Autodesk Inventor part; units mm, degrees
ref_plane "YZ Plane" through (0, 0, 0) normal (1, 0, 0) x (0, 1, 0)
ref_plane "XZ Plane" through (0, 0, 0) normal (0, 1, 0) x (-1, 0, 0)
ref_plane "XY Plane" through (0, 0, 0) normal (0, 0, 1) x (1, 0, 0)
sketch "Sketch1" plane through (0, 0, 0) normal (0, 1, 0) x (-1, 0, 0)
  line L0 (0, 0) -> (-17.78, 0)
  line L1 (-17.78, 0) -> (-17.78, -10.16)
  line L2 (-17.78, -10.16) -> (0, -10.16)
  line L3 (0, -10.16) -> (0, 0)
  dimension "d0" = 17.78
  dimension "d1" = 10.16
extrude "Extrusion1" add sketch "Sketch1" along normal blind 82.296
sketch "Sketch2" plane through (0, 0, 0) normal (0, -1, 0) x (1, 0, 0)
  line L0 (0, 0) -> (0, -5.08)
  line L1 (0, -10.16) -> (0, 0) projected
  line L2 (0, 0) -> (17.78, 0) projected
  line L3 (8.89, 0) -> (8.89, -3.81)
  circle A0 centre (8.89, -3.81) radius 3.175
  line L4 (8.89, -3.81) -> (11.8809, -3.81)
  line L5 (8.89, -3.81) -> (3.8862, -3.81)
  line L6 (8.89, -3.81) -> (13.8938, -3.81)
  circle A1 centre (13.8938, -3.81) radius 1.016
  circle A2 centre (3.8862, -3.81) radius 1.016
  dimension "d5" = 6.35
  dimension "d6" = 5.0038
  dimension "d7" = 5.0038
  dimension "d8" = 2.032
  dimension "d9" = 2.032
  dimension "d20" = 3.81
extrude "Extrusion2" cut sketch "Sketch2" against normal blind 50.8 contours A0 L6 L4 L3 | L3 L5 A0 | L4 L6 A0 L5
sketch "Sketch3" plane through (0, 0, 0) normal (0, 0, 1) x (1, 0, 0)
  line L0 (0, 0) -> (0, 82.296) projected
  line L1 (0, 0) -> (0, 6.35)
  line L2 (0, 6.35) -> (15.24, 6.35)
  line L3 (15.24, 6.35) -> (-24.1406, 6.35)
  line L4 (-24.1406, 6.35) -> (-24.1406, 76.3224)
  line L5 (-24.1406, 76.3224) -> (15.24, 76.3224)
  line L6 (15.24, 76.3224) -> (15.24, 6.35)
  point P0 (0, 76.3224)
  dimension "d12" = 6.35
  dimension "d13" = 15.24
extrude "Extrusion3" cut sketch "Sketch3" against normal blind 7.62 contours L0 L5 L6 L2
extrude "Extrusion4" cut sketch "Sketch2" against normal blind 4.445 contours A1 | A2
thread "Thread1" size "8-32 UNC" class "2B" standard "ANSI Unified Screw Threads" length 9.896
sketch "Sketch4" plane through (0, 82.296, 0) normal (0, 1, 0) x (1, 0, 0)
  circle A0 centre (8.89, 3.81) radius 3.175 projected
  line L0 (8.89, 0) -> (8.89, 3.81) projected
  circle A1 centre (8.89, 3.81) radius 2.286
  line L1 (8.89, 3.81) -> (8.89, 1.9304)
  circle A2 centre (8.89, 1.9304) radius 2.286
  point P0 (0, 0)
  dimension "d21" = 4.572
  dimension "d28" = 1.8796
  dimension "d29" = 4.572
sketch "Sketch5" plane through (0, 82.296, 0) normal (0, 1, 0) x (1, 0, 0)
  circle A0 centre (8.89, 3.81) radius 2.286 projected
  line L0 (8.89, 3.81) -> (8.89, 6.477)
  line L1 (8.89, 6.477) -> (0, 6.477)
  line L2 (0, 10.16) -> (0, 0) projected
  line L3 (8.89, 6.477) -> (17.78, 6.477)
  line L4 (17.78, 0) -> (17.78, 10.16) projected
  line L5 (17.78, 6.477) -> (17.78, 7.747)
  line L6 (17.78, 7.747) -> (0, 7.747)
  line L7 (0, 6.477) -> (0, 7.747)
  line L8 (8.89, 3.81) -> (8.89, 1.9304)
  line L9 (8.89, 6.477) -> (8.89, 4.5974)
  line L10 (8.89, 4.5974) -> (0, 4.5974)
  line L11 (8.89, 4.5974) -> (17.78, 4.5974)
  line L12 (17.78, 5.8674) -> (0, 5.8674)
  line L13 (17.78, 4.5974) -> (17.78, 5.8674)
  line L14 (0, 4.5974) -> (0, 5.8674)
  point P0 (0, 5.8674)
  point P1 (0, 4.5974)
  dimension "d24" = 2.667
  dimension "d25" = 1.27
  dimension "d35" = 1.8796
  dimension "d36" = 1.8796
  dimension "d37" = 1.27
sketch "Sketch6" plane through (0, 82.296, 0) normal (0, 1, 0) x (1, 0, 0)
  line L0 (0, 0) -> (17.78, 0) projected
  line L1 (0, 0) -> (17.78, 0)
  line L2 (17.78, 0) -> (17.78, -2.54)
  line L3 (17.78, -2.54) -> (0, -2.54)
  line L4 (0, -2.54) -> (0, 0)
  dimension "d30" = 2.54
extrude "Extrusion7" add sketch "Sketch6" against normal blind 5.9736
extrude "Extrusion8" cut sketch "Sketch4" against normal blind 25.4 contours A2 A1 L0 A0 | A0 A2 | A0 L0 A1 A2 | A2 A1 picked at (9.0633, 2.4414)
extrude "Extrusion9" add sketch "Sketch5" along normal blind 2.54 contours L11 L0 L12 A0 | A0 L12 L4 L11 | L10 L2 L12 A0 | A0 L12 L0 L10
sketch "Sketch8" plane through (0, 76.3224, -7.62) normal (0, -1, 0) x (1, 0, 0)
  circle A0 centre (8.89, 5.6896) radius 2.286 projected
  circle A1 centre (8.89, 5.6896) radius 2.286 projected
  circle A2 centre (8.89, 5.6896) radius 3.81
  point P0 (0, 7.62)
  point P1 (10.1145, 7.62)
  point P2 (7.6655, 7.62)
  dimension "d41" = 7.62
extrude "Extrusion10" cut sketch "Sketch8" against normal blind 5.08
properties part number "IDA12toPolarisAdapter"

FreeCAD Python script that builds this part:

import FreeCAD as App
import Part
import Sketcher

V = App.Vector
Q = App.Units.Quantity

doc = App.newDocument("Part")
body = doc.addObject("PartDesign::Body", "Body")

sketch1 = body.newObject("Sketcher::SketchObject", "Sketch")
sketch1.AttachmentSupport = (doc.getObject("XZ_Plane"), [""])
sketch1.MapMode = "FlatFace"
sketch1.addGeometry([
    Part.LineSegment(V(0, -10.16, 0), V(0, 0, 0)),
    Part.LineSegment(V(0, 0, 0), V(17.78, 0, 0)),
    Part.LineSegment(V(17.78, 0, 0), V(17.78, -10.16, 0)),
    Part.LineSegment(V(17.78, -10.16, 0), V(0, -10.16, 0)),
], False)
sketch1.addConstraint([
    Sketcher.Constraint("Coincident", 0, 2, 1, 1),
    Sketcher.Constraint("Coincident", 1, 2, 2, 1),
    Sketcher.Constraint("Coincident", 2, 2, 3, 1),
    Sketcher.Constraint("Coincident", 3, 2, 0, 1),
    Sketcher.Constraint("Vertical", 0),
    Sketcher.Constraint("Horizontal", 1),
    Sketcher.Constraint("Vertical", 2),
    Sketcher.Constraint("Horizontal", 3),
    Sketcher.Constraint("Coincident", 0, 2, -1, 1),
    Sketcher.Constraint("DistanceX", 1, 1, 1, 2, Q("0.7 in")),
    Sketcher.Constraint("DistanceY", 0, 1, 0, 2, Q("0.4 in")),
])
pad1 = body.newObject("PartDesign::Pad", "Pad")
pad1.Profile = sketch1
pad1.Length = Q("3.24 in")
pad1.Reversed = True

sketch2 = body.newObject("Sketcher::SketchObject", "Sketch001")
sketch2.AttachmentSupport = (doc.getObject("XZ_Plane"), [""])
sketch2.MapMode = "FlatFace"
sketch2.addGeometry(Part.Circle(V(8.89, -3.81, 0), V(0, 0, 1), 3.175), False)
sketch2.addConstraint([
    Sketcher.Constraint("Diameter", 0, Q("0.25 in")),
    Sketcher.Constraint("DistanceY", 0, 3, -1, 1, Q("0.15 in")),
    Sketcher.Constraint("DistanceX", -1, 1, 0, 3, Q("0.35 in")),
])
pocket1 = body.newObject("PartDesign::Pocket", "Pocket")
pocket1.Profile = sketch2
pocket1.Length = Q("2 in")

sketch3 = body.newObject("Sketcher::SketchObject", "Sketch002")
sketch3.AttachmentSupport = (doc.getObject("XY_Plane"), [""])
sketch3.MapMode = "FlatFace"
sketch3.addGeometry([
    Part.LineSegment(V(0, 76.3224, 0), V(0, 6.35, 0)),
    Part.LineSegment(V(0, 6.35, 0), V(15.24, 6.35, 0)),
    Part.LineSegment(V(15.24, 6.35, 0), V(15.24, 76.3224, 0)),
    Part.LineSegment(V(15.24, 76.3224, 0), V(0, 76.3224, 0)),
], False)
sketch3.addConstraint([
    Sketcher.Constraint("Coincident", 0, 2, 1, 1),
    Sketcher.Constraint("Coincident", 1, 2, 2, 1),
    Sketcher.Constraint("Coincident", 2, 2, 3, 1),
    Sketcher.Constraint("Coincident", 3, 2, 0, 1),
    Sketcher.Constraint("Vertical", 0),
    Sketcher.Constraint("Horizontal", 1),
    Sketcher.Constraint("Vertical", 2),
    Sketcher.Constraint("Horizontal", 3),
    Sketcher.Constraint("PointOnObject", 0, 2, -2),
    Sketcher.Constraint("DistanceX", 1, 1, 1, 2, Q("0.6 in")),
    Sketcher.Constraint("DistanceY", -1, 1, 0, 2, Q("0.25 in")),
    Sketcher.Constraint("DistanceY", 0, 2, 0, 1, Q("69.9724 mm")),
])
pocket2 = body.newObject("PartDesign::Pocket", "Pocket001")
pocket2.Profile = sketch3
pocket2.Length = Q("0.3 in")

sketch4 = body.newObject("Sketcher::SketchObject", "Sketch003")
sketch4.AttachmentSupport = (doc.getObject("XZ_Plane"), [""])
sketch4.MapMode = "FlatFace"
sketch4.addGeometry([
    Part.Circle(V(13.8938, -3.81, 0), V(0, 0, 1), 1.016),
    Part.Circle(V(3.8862, -3.81, 0), V(0, 0, 1), 1.016),
], False)
sketch4.addConstraint([
    Sketcher.Constraint("Equal", 0, 1),
    Sketcher.Constraint("Horizontal", 0, 3, 1, 3),
    Sketcher.Constraint("Diameter", 0, Q("0.08 in")),
    Sketcher.Constraint("DistanceY", 0, 3, -1, 1, Q("0.15 in")),
    Sketcher.Constraint("DistanceX", -1, 1, 0, 3, Q("0.547 in")),
    Sketcher.Constraint("DistanceX", -1, 1, 1, 3, Q("0.153 in")),
])
pocket3 = body.newObject("PartDesign::Pocket", "Pocket002")
pocket3.Profile = sketch4
pocket3.Length = Q("0.175 in")

sketch5 = body.newObject("Sketcher::SketchObject", "Sketch004")
sketch5.AttachmentSupport = (doc.getObject("XZ_Plane"), [""])
sketch5.MapMode = "FlatFace"
sketch5.AttachmentOffset = App.Placement(V(0, 0, -3.24 * 25.4), App.Rotation())
sketch5.addGeometry([
    Part.LineSegment(V(17.78, 0, 0), V(0, 0, 0)),
    Part.LineSegment(V(0, 0, 0), V(0, 2.54, 0)),
    Part.LineSegment(V(0, 2.54, 0), V(17.78, 2.54, 0)),
    Part.LineSegment(V(17.78, 2.54, 0), V(17.78, 0, 0)),
], False)
sketch5.addConstraint([
    Sketcher.Constraint("Coincident", 0, 2, 1, 1),
    Sketcher.Constraint("Coincident", 1, 2, 2, 1),
    Sketcher.Constraint("Coincident", 2, 2, 3, 1),
    Sketcher.Constraint("Coincident", 3, 2, 0, 1),
    Sketcher.Constraint("Horizontal", 0),
    Sketcher.Constraint("Vertical", 1),
    Sketcher.Constraint("Horizontal", 2),
    Sketcher.Constraint("Vertical", 3),
    Sketcher.Constraint("Coincident", 0, 2, -1, 1),
    Sketcher.Constraint("DistanceY", 1, 1, 1, 2, Q("0.1 in")),
    Sketcher.Constraint("DistanceX", 0, 2, 0, 1, Q("0.7 in")),
])
pad2 = body.newObject("PartDesign::Pad", "Pad001")
pad2.Profile = sketch5
pad2.Length = 5.9736

sketch6 = body.newObject("Sketcher::SketchObject", "Sketch005")
sketch6.AttachmentSupport = (doc.getObject("XZ_Plane"), [""])
sketch6.MapMode = "FlatFace"
sketch6.AttachmentOffset = App.Placement(V(0, 0, -3.24 * 25.4), App.Rotation())
sketch6.addGeometry(Part.Circle(V(8.89, -1.9304, 0), V(0, 0, 1), 2.286), False)
sketch6.addConstraint([
    Sketcher.Constraint("Diameter", 0, Q("0.18 in")),
    Sketcher.Constraint("DistanceX", -1, 1, 0, 3, Q("0.35 in")),
    Sketcher.Constraint("DistanceY", 0, 3, -1, 1, Q("0.076 in")),
])
pocket4 = body.newObject("PartDesign::Pocket", "Pocket003")
pocket4.Profile = sketch6
pocket4.Length = Q("1 in")
pocket4.Reversed = True

sketch7 = body.newObject("Sketcher::SketchObject", "Sketch006")
sketch7.AttachmentSupport = (doc.getObject("XZ_Plane"), [""])
sketch7.MapMode = "FlatFace"
sketch7.AttachmentOffset = App.Placement(V(0, 0, -3.24 * 25.4), App.Rotation())
sketch7.addGeometry([
    Part.LineSegment(V(17.78, -4.5974, 0), V(17.78, -5.8674, 0)),
    Part.LineSegment(V(17.78, -5.8674, 0), V(0, -5.8674, 0)),
    Part.LineSegment(V(0, -5.8674, 0), V(0, -4.5974, 0)),
    Part.LineSegment(V(0, -4.5974, 0), V(17.78, -4.5974, 0)),
], False)
sketch7.addConstraint([
    Sketcher.Constraint("Coincident", 0, 2, 1, 1),
    Sketcher.Constraint("Coincident", 1, 2, 2, 1),
    Sketcher.Constraint("Coincident", 2, 2, 3, 1),
    Sketcher.Constraint("Coincident", 3, 2, 0, 1),
    Sketcher.Constraint("Vertical", 0),
    Sketcher.Constraint("Horizontal", 1),
    Sketcher.Constraint("Vertical", 2),
    Sketcher.Constraint("Horizontal", 3),
    Sketcher.Constraint("PointOnObject", 1, 2, -2),
    Sketcher.Constraint("DistanceY", 0, 2, 0, 1, Q("0.05 in")),
    Sketcher.Constraint("DistanceX", 1, 2, 1, 1, Q("0.7 in")),
    Sketcher.Constraint("DistanceY", 0, 2, -1, 1, Q("0.231 in")),
])
pad3 = body.newObject("PartDesign::Pad", "Pad002")
pad3.Profile = sketch7
pad3.Length = Q("0.1 in")
pad3.Reversed = True

sketch8 = body.newObject("Sketcher::SketchObject", "Sketch007")
sketch8.AttachmentSupport = (doc.getObject("XZ_Plane"), [""])
sketch8.MapMode = "FlatFace"
sketch8.AttachmentOffset = App.Placement(V(0, 0, -76.3224), App.Rotation())
sketch8.addGeometry([
    Part.Circle(V(8.89, -1.9304, 0), V(0, 0, 1), 3.81),
    Part.Circle(V(8.89, -1.9304, 0), V(0, 0, 1), 2.286),
], False)
sketch8.addConstraint([
    Sketcher.Constraint("Coincident", 1, 3, 0, 3),
    Sketcher.Constraint("Diameter", 0, Q("0.3 in")),
    Sketcher.Constraint("Diameter", 1, Q("0.18 in")),
    Sketcher.Constraint("DistanceX", -1, 1, 0, 3, Q("0.35 in")),
    Sketcher.Constraint("DistanceY", 0, 3, -1, 1, Q("0.076 in")),
])
pocket5 = body.newObject("PartDesign::Pocket", "Pocket004")
pocket5.Profile = sketch8
pocket5.Length = Q("0.2 in")

doc.recompute()
